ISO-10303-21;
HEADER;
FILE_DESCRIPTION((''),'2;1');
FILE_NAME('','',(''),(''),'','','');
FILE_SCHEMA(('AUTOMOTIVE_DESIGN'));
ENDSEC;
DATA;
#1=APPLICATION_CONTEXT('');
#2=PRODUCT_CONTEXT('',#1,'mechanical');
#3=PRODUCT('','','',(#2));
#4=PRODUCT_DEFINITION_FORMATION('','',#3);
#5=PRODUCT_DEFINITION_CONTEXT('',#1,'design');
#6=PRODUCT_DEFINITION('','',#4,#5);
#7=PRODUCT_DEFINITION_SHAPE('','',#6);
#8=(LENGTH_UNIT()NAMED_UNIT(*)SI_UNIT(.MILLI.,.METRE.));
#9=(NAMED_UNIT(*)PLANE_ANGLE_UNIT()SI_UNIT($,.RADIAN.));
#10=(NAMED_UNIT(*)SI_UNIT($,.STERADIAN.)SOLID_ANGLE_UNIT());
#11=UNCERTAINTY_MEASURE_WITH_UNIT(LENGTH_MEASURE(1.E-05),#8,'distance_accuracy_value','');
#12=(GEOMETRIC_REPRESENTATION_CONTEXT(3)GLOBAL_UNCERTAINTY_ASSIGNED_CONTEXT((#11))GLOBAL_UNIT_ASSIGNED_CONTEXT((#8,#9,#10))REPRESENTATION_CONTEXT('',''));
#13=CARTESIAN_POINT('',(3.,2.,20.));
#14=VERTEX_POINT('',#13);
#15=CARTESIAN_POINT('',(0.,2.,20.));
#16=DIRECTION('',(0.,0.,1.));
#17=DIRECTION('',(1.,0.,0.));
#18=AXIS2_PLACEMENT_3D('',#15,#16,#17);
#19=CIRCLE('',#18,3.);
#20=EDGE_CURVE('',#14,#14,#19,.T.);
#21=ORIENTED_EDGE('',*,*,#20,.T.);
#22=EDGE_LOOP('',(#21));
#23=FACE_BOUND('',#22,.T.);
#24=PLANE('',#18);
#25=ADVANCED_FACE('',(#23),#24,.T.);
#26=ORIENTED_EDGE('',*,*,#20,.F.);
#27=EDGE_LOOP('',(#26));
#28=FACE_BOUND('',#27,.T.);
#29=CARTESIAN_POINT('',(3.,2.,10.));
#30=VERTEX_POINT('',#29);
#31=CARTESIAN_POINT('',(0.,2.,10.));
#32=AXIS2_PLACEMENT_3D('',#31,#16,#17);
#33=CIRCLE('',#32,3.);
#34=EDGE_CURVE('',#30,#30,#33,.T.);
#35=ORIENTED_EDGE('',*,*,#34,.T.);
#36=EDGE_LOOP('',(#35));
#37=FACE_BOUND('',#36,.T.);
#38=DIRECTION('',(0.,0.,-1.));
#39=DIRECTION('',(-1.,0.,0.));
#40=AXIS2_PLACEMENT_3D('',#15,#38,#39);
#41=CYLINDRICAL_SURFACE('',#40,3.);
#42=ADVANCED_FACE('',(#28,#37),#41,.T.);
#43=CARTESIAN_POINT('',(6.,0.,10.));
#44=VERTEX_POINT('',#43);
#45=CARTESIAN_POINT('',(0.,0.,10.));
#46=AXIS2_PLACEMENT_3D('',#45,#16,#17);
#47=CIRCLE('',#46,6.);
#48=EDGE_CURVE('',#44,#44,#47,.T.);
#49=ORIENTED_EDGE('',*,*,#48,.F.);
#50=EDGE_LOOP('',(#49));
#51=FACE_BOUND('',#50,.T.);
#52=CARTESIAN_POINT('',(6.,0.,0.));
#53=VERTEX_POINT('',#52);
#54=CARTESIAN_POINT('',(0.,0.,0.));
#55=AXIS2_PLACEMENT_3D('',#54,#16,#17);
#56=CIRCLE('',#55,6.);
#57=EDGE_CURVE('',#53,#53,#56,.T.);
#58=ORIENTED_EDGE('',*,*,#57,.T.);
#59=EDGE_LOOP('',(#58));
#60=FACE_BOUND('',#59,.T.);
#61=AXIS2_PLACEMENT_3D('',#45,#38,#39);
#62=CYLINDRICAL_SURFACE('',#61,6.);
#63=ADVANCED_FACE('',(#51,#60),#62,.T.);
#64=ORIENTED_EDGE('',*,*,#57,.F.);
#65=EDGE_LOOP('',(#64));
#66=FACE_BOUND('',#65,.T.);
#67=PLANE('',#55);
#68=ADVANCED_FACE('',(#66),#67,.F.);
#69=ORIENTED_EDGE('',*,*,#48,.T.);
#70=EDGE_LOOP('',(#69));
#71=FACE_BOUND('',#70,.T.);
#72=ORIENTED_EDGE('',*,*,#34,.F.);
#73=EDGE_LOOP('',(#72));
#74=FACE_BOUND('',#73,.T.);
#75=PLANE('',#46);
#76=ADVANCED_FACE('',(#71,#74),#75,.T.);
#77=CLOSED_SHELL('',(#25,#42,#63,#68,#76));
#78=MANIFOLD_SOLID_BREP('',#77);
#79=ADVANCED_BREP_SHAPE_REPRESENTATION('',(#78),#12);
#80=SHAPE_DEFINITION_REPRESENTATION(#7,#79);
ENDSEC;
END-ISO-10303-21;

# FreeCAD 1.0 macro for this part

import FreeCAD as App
import Part
import Sketcher

doc = App.newDocument("Part")
body = doc.addObject("PartDesign::Body", "Body")

sketch1 = body.newObject("Sketcher::SketchObject", "Sketch")
sketch1.AttachmentSupport = (doc.getObject("XY_Plane"), [""])
sketch1.MapMode = "FlatFace"
sketch1.addGeometry(Part.Circle(App.Vector(0, 0, 0), App.Vector(0, 0, 1), 6), False)
sketch1.addConstraint(Sketcher.Constraint("Coincident", 0, 3, -1, 1))
sketch1.addConstraint(Sketcher.Constraint("Diameter", 0, 12.0))
pad1 = body.newObject("PartDesign::Pad", "Pad")
pad1.Profile = sketch1
pad1.Length = 10

sketch2 = body.newObject("Sketcher::SketchObject", "Sketch001")
sketch2.AttachmentSupport = (doc.getObject("XY_Plane"), [""])
sketch2.MapMode = "FlatFace"
sketch2.AttachmentOffset = App.Placement(App.Vector(0, 0, 10), App.Rotation())
sketch2.addGeometry(Part.Circle(App.Vector(0, 2, 0), App.Vector(0, 0, 1), 3), False)
sketch2.addConstraint(Sketcher.Constraint("PointOnObject", 0, 3, -2))
sketch2.addConstraint(Sketcher.Constraint("Diameter", 0, 6.0))
sketch2.addConstraint(Sketcher.Constraint("DistanceY", -1, 1, 0, 3, 2.0))
pad2 = body.newObject("PartDesign::Pad", "Pad001")
pad2.Profile = sketch2
pad2.Length = 10

doc.recompute()
